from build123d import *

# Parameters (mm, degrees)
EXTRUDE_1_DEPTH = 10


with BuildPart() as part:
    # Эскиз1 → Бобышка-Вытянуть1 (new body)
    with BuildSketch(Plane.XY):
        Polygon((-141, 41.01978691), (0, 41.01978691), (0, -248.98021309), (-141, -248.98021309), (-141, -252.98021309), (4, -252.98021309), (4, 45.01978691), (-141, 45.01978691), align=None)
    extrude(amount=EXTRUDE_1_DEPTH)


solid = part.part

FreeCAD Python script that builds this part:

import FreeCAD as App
import Part
import Sketcher

V = App.Vector

doc = App.newDocument("Part")
body = doc.addObject("PartDesign::Body", "Body")

# Sketch on XY plane
sketch1 = doc.addObject("Sketcher::SketchObject", "Sketch")
body.addObject(sketch1)
sketch1.AttachmentSupport = (doc.XY_Plane, [""])
sketch1.MapMode = "FlatFace"
sketch1.addGeometry(Part.LineSegment(V(-141, 41.019787, 0), V(0, 41.019787, 0)), False)
sketch1.addGeometry(Part.LineSegment(V(0, 41.019787, 0), V(0, -248.980213, 0)), False)
sketch1.addGeometry(Part.LineSegment(V(0, -248.980213, 0), V(-141, -248.980213, 0)), False)
sketch1.addGeometry(Part.LineSegment(V(-141, -248.980213, 0), V(-141, -252.980213, 0)), False)
sketch1.addGeometry(Part.LineSegment(V(-141, -252.980213, 0), V(4, -252.980213, 0)), False)
sketch1.addGeometry(Part.LineSegment(V(4, -252.980213, 0), V(4, 45.019787, 0)), False)
sketch1.addGeometry(Part.LineSegment(V(4, 45.019787, 0), V(-141, 45.019787, 0)), False)
sketch1.addGeometry(Part.LineSegment(V(-141, 45.019787, 0), V(-141, 41.019787, 0)), False)
sketch1.addConstraint(Sketcher.Constraint("Coincident", 0, 2, 1, 1))
sketch1.addConstraint(Sketcher.Constraint("Coincident", 1, 2, 2, 1))
sketch1.addConstraint(Sketcher.Constraint("Coincident", 2, 2, 3, 1))
sketch1.addConstraint(Sketcher.Constraint("Coincident", 3, 2, 4, 1))
sketch1.addConstraint(Sketcher.Constraint("Coincident", 4, 2, 5, 1))
sketch1.addConstraint(Sketcher.Constraint("Coincident", 5, 2, 6, 1))
sketch1.addConstraint(Sketcher.Constraint("Coincident", 6, 2, 7, 1))
sketch1.addConstraint(Sketcher.Constraint("Coincident", 7, 2, 0, 1))
sketch1.addConstraint(Sketcher.Constraint("Horizontal", 0))
sketch1.addConstraint(Sketcher.Constraint("Vertical", 1))
sketch1.addConstraint(Sketcher.Constraint("Horizontal", 2))
sketch1.addConstraint(Sketcher.Constraint("Vertical", 3))
sketch1.addConstraint(Sketcher.Constraint("Horizontal", 4))
sketch1.addConstraint(Sketcher.Constraint("Vertical", 5))
sketch1.addConstraint(Sketcher.Constraint("Horizontal", 6))
sketch1.addConstraint(Sketcher.Constraint("Vertical", 7))
sketch1.addConstraint(Sketcher.Constraint("PointOnObject", 0, 2, -2))
sketch1.addConstraint(Sketcher.Constraint("Vertical", 3, 2, 6, 2))
sketch1.addConstraint(Sketcher.Constraint("Equal", 3, 7))
sketch1.addConstraint(Sketcher.Constraint("DistanceX", 0, 1, 0, 2, 141.0))
sketch1.addConstraint(Sketcher.Constraint("DistanceX", 4, 1, 4, 2, 145.0))
sketch1.addConstraint(Sketcher.Constraint("DistanceY", 1, 2, 1, 1, 290.0))
sketch1.addConstraint(Sketcher.Constraint("DistanceY", 3, 2, 3, 1, 4.0))
sketch1.addConstraint(Sketcher.Constraint("DistanceY", -1, 1, 0, 2, 41.019787))
pad1 = doc.addObject("PartDesign::Pad", "Pad")
body.addObject(pad1)
pad1.Profile = sketch1
pad1.Length = 10

doc.recompute()
